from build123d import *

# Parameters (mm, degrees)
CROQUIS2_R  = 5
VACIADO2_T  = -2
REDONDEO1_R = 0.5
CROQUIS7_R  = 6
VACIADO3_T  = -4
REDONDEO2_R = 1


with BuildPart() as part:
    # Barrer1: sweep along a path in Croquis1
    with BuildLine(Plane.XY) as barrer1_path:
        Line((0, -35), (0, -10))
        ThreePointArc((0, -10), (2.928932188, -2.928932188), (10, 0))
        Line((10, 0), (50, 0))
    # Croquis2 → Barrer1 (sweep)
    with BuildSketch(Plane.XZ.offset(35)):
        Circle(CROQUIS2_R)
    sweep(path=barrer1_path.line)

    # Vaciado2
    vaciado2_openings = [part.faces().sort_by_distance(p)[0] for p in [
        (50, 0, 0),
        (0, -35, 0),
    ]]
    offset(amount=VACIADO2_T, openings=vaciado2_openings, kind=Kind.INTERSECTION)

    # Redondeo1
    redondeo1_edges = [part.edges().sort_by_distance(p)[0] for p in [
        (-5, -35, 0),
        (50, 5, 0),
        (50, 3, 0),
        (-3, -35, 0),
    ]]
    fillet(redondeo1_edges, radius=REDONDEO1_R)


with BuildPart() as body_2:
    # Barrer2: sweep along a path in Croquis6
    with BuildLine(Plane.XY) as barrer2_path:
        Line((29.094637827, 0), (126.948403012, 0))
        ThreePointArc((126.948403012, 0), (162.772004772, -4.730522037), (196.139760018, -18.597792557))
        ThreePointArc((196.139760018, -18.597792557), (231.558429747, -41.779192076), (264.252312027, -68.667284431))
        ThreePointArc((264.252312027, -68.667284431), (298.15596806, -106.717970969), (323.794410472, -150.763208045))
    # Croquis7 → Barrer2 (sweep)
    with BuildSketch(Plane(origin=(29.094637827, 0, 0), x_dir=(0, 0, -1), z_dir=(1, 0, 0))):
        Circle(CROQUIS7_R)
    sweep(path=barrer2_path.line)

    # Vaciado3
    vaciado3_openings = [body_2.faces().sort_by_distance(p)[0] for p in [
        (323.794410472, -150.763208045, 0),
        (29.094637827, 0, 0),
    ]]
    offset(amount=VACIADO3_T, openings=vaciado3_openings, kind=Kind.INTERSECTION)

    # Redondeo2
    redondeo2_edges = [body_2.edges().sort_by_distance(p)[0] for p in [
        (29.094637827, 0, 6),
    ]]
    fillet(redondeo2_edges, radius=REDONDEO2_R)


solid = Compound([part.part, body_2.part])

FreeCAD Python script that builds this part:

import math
import FreeCAD as App
import Part
import Sketcher
from FreeCAD import Vector


def edges_at(feature, points):
    """Names of the edges that pass closest to the given points."""
    edges = feature.Shape.Edges
    near = lambda p: min(range(len(edges)), key=lambda i: edges[i].distToShape(Part.Vertex(*p))[0])
    return sorted({f"Edge{near(p) + 1}" for p in points})


def faces_at(feature, points):
    """Names of the faces that lie closest to the given points."""
    faces = feature.Shape.Faces
    near = lambda p: min(range(len(faces)), key=lambda i: faces[i].distToShape(Part.Vertex(*p))[0])
    return sorted({f"Face{near(p) + 1}" for p in points})

doc = App.newDocument("Part")
body = doc.addObject("PartDesign::Body", "Body")

sketch1 = body.newObject("Sketcher::SketchObject", "Sketch")
sketch1.AttachmentSupport = (doc.getObject("XZ_Plane"), [""])
sketch1.MapMode = "FlatFace"
sketch1.AttachmentOffset = App.Placement(Vector(0, 0, 35), App.Rotation())
sketch1.addGeometry(Part.Circle(Vector(0, 0, 0), Vector(0, 0, 1), 5), False)
sketch1.addConstraint([
    Sketcher.Constraint("Coincident", 0, 3, -1, 1),
    Sketcher.Constraint("Diameter", 0, 10.0),
])

sketch2 = body.newObject("Sketcher::SketchObject", "Sketch001")
sketch2.AttachmentSupport = (doc.getObject("XY_Plane"), [""])
sketch2.MapMode = "FlatFace"
sketch2.addGeometry([
    Part.LineSegment(Vector(0, -35, 0), Vector(0, -10, 0)),
    Part.ArcOfCircle(Part.Circle(Vector(10, -10, 0), Vector(0, 0, 1), 10), math.radians(90), math.radians(180)),
    Part.LineSegment(Vector(10, 0, 0), Vector(50, 0, 0)),
], False)
sketch2.addConstraint([
    Sketcher.Constraint("Tangent", 0, 2, 1, 2),
    Sketcher.Constraint("Tangent", 1, 1, 2, 1),
    Sketcher.Constraint("Vertical", 0),
    Sketcher.Constraint("Horizontal", 2),
    Sketcher.Constraint("PointOnObject", 0, 1, -2),
    Sketcher.Constraint("PointOnObject", 1, 1, -1),
    Sketcher.Constraint("Radius", 1, 10.0),
    Sketcher.Constraint("DistanceX", 2, 1, 2, 2, 40.0),
    Sketcher.Constraint("DistanceY", 0, 1, 0, 2, 25.0),
])
doc.recompute()

additivepipe = body.newObject("PartDesign::AdditivePipe", "AdditivePipe")
additivepipe.Profile = sketch1
additivepipe.Spine = (sketch2, ["Edge1", "Edge2", "Edge3"])
doc.recompute()

thickness = body.newObject("PartDesign::Thickness", "Thickness")
thickness.Base = (additivepipe, faces_at(additivepipe, [(50, 0, 0), (0, -35, 0)]))
thickness.Value = 2
thickness.Reversed = True
thickness.Join = "Intersection"
doc.recompute()

fillet = body.newObject("PartDesign::Fillet", "Fillet")
fillet.Base = (thickness, edges_at(thickness, [
    (-5, -35, 0),
    (50, 5, 0),
    (50, 3, 0),
    (-3, -35, 0),
]))
fillet.Radius = 0.5
body2 = doc.addObject("PartDesign::Body", "Body001")

sketch3 = body2.newObject("Sketcher::SketchObject", "Sketch002")
sketch3.AttachmentSupport = (doc.getObject("YZ_Plane001"), [""])
sketch3.MapMode = "FlatFace"
sketch3.AttachmentOffset = App.Placement(Vector(0, 0, 29.094638), App.Rotation())
sketch3.addGeometry(Part.Circle(Vector(0, 0, 0), Vector(0, 0, 1), 6), False)
sketch3.addConstraint([
    Sketcher.Constraint("Coincident", 0, 3, -1, 1),
    Sketcher.Constraint("Diameter", 0, 12.0),
])

sketch4 = body2.newObject("Sketcher::SketchObject", "Sketch003")
sketch4.AttachmentSupport = (doc.getObject("XY_Plane001"), [""])
sketch4.MapMode = "FlatFace"
sketch4.addGeometry([
    Part.LineSegment(Vector(29, 0, 0), Vector(127, 0, 0)),
    Part.ArcOfCircle(Part.Circle(Vector(127, -138, 0), Vector(0, 0, 1), 138), math.radians(60), math.radians(90)),
    Part.ArcOfCircle(Part.Circle(Vector(1, -356, 0), Vector(0, 0, 1), 389), math.radians(47.45), math.radians(59.91)),
    Part.ArcOfCircle(Part.Circle(Vector(92, -256, 0), Vector(0, 0, 1), 254), math.radians(24), math.radians(47)),
], False)
sketch4.addConstraint([
    Sketcher.Constraint("Tangent", 0, 2, 1, 2),
    Sketcher.Constraint("Tangent", 1, 1, 2, 2),
    Sketcher.Constraint("Tangent", 2, 1, 3, 2),
    Sketcher.Constraint("Horizontal", 0),
    Sketcher.Constraint("PointOnObject", 0, 1, -1),
    Sketcher.Constraint("Radius", 1, 138.0089),
    Sketcher.Constraint("Radius", 2, 389.497496),
    Sketcher.Constraint("Radius", 3, 254.383856),
    Sketcher.Constraint("DistanceX", 2, 1, 3, 1, 59.542098),
    Sketcher.Constraint("DistanceX", 0, 1, 0, 2, 97.853765),
    Sketcher.Constraint("DistanceX", -1, 1, 2, 3, 0.86351),
    Sketcher.Constraint("DistanceX", -1, 1, 3, 3, 92.231029),
    Sketcher.Constraint("DistanceX", -1, 1, 1, 1, 196.13976),
])
doc.recompute()

additivepipe2 = body2.newObject("PartDesign::AdditivePipe", "AdditivePipe001")
additivepipe2.Profile = sketch3
additivepipe2.Spine = (sketch4, ["Edge1", "Edge2", "Edge3", "Edge4"])
doc.recompute()

thickness2 = body2.newObject("PartDesign::Thickness", "Thickness001")
thickness2.Base = (additivepipe2, faces_at(additivepipe2, [(323.794, -150.763, 0), (29.095, 0, 0)]))
thickness2.Value = 4
thickness2.Reversed = True
thickness2.Join = "Intersection"
doc.recompute()

fillet2 = body2.newObject("PartDesign::Fillet", "Fillet001")
fillet2.Base = (thickness2, edges_at(thickness2, [(29.095, 0, 6)]))
fillet2.Radius = 1

doc.recompute()
